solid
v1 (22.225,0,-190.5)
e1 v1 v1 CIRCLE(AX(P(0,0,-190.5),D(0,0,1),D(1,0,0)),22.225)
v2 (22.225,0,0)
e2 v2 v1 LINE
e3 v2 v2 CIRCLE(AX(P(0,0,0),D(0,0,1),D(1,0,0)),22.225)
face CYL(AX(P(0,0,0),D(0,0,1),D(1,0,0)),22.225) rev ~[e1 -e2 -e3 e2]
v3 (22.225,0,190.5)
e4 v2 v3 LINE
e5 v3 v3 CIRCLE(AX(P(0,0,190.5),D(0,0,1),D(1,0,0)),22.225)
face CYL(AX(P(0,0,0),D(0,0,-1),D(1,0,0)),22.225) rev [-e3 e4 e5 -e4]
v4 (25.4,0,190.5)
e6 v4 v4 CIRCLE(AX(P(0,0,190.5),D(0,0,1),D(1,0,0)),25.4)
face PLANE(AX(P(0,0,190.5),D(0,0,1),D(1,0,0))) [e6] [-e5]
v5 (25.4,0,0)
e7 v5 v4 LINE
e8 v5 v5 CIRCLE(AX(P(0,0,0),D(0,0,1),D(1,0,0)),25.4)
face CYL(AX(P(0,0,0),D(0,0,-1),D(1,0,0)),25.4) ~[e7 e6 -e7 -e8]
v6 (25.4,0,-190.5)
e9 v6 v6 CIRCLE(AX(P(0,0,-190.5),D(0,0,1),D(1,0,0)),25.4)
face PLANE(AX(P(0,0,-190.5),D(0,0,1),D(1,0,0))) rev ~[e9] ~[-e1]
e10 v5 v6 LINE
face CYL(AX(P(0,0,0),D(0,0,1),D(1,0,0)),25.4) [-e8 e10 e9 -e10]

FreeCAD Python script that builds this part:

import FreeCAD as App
import Part
import Sketcher
Q = App.Units.Quantity

doc = App.newDocument("Part")
body = doc.addObject("PartDesign::Body", "Body")

sketch1 = body.newObject("Sketcher::SketchObject", "Sketch")
sketch1.AttachmentSupport = (doc.getObject("XY_Plane"), [""])
sketch1.MapMode = "FlatFace"
sketch1.addGeometry([
    Part.Circle(App.Vector(0, 0, 0), App.Vector(0, 0, 1), 25),
    Part.Circle(App.Vector(0, 0, 0), App.Vector(0, 0, 1), 22),
], False)
sketch1.addConstraint([
    Sketcher.Constraint("Coincident", 0, 3, -1, 1),
    Sketcher.Constraint("Coincident", 1, 3, -1, 1),
    Sketcher.Constraint("Diameter", 0, Q("2 in")),
    Sketcher.Constraint("Diameter", 1, Q("1.75 in")),
])
pad1 = body.newObject("PartDesign::Pad", "Pad")
pad1.Profile = sketch1
pad1.Length = Q("15 in")
pad1.Midplane = True

doc.recompute()
